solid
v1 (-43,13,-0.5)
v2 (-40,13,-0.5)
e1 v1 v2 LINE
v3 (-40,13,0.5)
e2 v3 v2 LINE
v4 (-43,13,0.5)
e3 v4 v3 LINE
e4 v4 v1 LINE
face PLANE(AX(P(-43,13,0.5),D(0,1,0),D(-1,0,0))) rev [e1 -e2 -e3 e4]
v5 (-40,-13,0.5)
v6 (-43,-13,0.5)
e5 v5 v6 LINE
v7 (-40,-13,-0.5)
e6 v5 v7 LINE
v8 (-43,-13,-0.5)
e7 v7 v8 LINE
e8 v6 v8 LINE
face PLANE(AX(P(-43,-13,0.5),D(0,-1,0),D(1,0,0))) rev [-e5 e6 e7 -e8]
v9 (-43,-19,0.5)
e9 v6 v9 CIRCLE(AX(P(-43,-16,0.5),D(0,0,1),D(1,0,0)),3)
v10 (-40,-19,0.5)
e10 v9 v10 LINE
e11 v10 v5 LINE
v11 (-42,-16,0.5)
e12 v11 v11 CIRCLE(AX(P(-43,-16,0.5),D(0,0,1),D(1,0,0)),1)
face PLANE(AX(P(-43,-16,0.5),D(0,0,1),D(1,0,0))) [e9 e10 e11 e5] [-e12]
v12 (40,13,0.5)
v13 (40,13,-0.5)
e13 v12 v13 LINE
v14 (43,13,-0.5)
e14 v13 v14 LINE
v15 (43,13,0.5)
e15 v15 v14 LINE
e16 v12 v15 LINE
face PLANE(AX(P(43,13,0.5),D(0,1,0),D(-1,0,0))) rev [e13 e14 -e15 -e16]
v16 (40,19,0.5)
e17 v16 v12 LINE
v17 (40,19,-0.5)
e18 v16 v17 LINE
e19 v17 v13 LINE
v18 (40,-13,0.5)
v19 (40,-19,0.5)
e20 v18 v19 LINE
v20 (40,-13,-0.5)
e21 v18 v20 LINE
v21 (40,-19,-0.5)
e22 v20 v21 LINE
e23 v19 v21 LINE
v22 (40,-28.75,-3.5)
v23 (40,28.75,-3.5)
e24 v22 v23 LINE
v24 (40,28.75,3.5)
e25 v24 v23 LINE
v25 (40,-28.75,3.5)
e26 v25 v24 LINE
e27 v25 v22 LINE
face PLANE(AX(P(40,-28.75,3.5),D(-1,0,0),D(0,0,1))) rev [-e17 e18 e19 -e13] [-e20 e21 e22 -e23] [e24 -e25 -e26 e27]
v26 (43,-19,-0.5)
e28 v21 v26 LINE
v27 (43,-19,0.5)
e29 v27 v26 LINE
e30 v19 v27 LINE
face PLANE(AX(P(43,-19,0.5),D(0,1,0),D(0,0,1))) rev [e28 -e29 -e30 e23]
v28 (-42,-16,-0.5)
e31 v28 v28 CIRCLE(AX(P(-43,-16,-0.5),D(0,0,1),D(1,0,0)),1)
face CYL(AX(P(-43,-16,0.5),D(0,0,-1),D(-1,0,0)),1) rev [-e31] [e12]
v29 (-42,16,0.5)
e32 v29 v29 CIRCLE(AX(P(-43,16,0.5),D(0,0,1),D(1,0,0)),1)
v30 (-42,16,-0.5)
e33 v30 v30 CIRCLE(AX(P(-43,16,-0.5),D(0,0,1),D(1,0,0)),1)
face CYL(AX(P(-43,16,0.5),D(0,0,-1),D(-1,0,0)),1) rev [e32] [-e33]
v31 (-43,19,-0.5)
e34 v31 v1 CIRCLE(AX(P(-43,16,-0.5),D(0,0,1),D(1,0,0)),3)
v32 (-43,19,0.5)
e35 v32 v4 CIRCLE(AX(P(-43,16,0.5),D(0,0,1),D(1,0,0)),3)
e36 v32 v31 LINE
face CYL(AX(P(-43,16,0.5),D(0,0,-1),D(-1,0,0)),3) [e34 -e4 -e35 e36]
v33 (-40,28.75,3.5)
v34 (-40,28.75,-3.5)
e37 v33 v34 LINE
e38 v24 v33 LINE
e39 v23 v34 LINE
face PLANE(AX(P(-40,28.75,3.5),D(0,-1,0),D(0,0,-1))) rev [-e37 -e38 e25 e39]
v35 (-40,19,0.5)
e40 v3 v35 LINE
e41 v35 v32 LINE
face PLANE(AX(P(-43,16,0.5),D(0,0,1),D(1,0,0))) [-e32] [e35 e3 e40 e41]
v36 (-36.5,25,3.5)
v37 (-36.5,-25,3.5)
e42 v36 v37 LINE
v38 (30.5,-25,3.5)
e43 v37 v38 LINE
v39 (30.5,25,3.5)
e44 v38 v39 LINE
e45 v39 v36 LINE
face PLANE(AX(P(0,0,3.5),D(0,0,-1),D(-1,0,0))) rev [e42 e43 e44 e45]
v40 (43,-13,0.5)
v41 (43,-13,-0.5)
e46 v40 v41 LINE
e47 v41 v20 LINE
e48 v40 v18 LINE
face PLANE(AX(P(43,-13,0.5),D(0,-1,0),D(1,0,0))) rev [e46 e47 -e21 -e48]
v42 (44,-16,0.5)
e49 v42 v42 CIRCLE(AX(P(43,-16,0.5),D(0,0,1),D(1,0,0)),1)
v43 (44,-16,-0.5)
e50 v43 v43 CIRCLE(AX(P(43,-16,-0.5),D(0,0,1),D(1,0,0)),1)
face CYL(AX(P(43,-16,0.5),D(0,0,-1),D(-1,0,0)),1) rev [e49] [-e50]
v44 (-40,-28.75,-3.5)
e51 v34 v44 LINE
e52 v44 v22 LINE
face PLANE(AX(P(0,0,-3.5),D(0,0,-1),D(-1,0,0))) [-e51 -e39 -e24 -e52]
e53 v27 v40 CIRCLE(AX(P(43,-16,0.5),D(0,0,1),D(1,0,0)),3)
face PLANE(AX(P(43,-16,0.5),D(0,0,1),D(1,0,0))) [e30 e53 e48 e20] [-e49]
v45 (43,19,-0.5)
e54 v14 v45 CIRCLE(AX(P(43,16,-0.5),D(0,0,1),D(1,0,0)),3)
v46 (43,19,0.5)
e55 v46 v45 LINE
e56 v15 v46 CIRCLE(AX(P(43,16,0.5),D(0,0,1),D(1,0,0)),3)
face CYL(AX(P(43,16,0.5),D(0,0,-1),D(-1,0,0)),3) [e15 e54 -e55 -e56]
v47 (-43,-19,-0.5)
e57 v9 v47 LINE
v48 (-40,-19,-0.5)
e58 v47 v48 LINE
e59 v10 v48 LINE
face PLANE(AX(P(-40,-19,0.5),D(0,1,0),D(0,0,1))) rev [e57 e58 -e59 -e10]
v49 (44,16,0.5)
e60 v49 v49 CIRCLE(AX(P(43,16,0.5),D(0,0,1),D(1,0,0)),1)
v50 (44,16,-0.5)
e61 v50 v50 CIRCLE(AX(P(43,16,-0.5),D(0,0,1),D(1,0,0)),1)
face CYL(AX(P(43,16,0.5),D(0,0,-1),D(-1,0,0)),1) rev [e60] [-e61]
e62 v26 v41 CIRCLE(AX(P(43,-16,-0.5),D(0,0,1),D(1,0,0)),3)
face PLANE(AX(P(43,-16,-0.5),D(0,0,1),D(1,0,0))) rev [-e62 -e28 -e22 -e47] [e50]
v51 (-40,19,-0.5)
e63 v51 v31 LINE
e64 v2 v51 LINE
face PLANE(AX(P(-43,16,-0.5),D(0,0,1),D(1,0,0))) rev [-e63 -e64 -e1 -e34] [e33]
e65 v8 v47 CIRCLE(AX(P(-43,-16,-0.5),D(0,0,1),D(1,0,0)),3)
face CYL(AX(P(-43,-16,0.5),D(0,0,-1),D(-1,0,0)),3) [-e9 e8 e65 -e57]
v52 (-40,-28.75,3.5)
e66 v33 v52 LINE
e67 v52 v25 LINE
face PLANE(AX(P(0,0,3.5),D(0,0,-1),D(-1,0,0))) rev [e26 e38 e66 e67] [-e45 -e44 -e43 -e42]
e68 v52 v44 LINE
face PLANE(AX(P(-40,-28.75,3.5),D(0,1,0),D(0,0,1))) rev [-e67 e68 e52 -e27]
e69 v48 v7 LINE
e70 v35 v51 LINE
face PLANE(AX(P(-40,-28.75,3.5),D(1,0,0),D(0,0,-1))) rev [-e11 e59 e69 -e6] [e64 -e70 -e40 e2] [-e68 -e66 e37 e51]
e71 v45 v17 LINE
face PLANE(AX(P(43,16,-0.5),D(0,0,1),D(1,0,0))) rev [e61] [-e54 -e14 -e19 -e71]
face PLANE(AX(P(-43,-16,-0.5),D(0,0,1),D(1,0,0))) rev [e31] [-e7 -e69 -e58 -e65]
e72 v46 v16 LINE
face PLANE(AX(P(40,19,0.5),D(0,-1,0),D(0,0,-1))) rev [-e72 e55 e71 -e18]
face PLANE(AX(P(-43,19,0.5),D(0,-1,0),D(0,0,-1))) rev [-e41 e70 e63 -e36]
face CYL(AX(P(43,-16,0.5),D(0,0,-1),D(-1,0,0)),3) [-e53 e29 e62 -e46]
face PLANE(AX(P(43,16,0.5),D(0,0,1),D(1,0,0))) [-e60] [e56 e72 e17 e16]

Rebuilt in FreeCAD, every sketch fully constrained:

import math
import FreeCAD as App
import Part
import Sketcher
from FreeCAD import Vector
Q = App.Units.Quantity

doc = App.newDocument("Part")
body = doc.addObject("PartDesign::Body", "Body")

sketch1 = body.newObject("Sketcher::SketchObject", "Sketch")
sketch1.AttachmentSupport = (doc.getObject("XY_Plane"), [""])
sketch1.MapMode = "FlatFace"
sketch1.addGeometry([
    Part.LineSegment(Vector(-40, 29, 0), Vector(-40, -29, 0)),
    Part.LineSegment(Vector(-40, -29, 0), Vector(40, -29, 0)),
    Part.LineSegment(Vector(40, -29, 0), Vector(40, 29, 0)),
    Part.LineSegment(Vector(40, 29, 0), Vector(-40, 29, 0)),
], False)
sketch1.addConstraint([
    Sketcher.Constraint("Coincident", 0, 2, 1, 1),
    Sketcher.Constraint("Coincident", 1, 2, 2, 1),
    Sketcher.Constraint("Coincident", 2, 2, 3, 1),
    Sketcher.Constraint("Coincident", 3, 2, 0, 1),
    Sketcher.Constraint("Vertical", 0),
    Sketcher.Constraint("Horizontal", 1),
    Sketcher.Constraint("Vertical", 2),
    Sketcher.Constraint("Horizontal", 3),
    Sketcher.Constraint("Symmetric", 0, 2, 2, 2, -1, 1),
    Sketcher.Constraint("DistanceX", 1, 1, 1, 2, Q("80 mm")),
    Sketcher.Constraint("DistanceY", 0, 2, 0, 1, Q("57.5 mm")),
])
pad1 = body.newObject("PartDesign::Pad", "Pad")
pad1.Profile = sketch1
pad1.Length = 7
pad1.Midplane = True

sketch2 = body.newObject("Sketcher::SketchObject", "Sketch001")
sketch2.AttachmentSupport = (doc.getObject("XY_Plane"), [""])
sketch2.MapMode = "FlatFace"
sketch2.addGeometry([
    Part.LineSegment(Vector(43, 19, 0), Vector(40, 19, 0)),
    Part.LineSegment(Vector(40, 19, 0), Vector(40, 13, 0)),
    Part.LineSegment(Vector(40, 13, 0), Vector(43, 13, 0)),
    Part.ArcOfCircle(Part.Circle(Vector(43, 16, 0), Vector(0, 0, 1), 3), math.radians(-90), math.radians(90)),
    Part.Circle(Vector(43, 16, 0), Vector(0, 0, 1), 1),
    Part.LineSegment(Vector(40, -19, 0), Vector(43, -19, 0)),
    Part.ArcOfCircle(Part.Circle(Vector(43, -16, 0), Vector(0, 0, 1), 3), math.radians(-90), math.radians(90)),
    Part.LineSegment(Vector(43, -13, 0), Vector(40, -13, 0)),
    Part.LineSegment(Vector(40, -13, 0), Vector(40, -19, 0)),
    Part.Circle(Vector(43, -16, 0), Vector(0, 0, 1), 1),
    Part.LineSegment(Vector(-40, 19, 0), Vector(-43, 19, 0)),
    Part.ArcOfCircle(Part.Circle(Vector(-43, 16, 0), Vector(0, 0, 1), 3), math.radians(90), math.radians(270)),
    Part.LineSegment(Vector(-43, 13, 0), Vector(-40, 13, 0)),
    Part.LineSegment(Vector(-40, 13, 0), Vector(-40, 19, 0)),
    Part.Circle(Vector(-43, 16, 0), Vector(0, 0, 1), 1),
    Part.LineSegment(Vector(-40, -13, 0), Vector(-43, -13, 0)),
    Part.ArcOfCircle(Part.Circle(Vector(-43, -16, 0), Vector(0, 0, 1), 3), math.radians(90), math.radians(270)),
    Part.LineSegment(Vector(-43, -19, 0), Vector(-40, -19, 0)),
    Part.LineSegment(Vector(-40, -19, 0), Vector(-40, -13, 0)),
    Part.Circle(Vector(-43, -16, 0), Vector(0, 0, 1), 1),
], False)
sketch2.addConstraint([
    Sketcher.Constraint("Coincident", 0, 2, 1, 1),
    Sketcher.Constraint("Coincident", 1, 2, 2, 1),
    Sketcher.Constraint("Tangent", 2, 2, 3, 1),
    Sketcher.Constraint("Tangent", 3, 2, 0, 1),
    Sketcher.Constraint("Tangent", 5, 2, 6, 1),
    Sketcher.Constraint("Tangent", 6, 2, 7, 1),
    Sketcher.Constraint("Coincident", 7, 2, 8, 1),
    Sketcher.Constraint("Coincident", 8, 2, 5, 1),
    Sketcher.Constraint("Tangent", 10, 2, 11, 1),
    Sketcher.Constraint("Tangent", 11, 2, 12, 1),
    Sketcher.Constraint("Coincident", 12, 2, 13, 1),
    Sketcher.Constraint("Coincident", 13, 2, 10, 1),
    Sketcher.Constraint("Tangent", 15, 2, 16, 1),
    Sketcher.Constraint("Tangent", 16, 2, 17, 1),
    Sketcher.Constraint("Coincident", 17, 2, 18, 1),
    Sketcher.Constraint("Coincident", 18, 2, 15, 1),
    Sketcher.Constraint("Horizontal", 0),
    Sketcher.Constraint("Vertical", 1),
    Sketcher.Constraint("Horizontal", 2),
    Sketcher.Constraint("Horizontal", 5),
    Sketcher.Constraint("Horizontal", 7),
    Sketcher.Constraint("Vertical", 8),
    Sketcher.Constraint("Horizontal", 10),
    Sketcher.Constraint("Horizontal", 12),
    Sketcher.Constraint("Vertical", 13),
    Sketcher.Constraint("Horizontal", 15),
    Sketcher.Constraint("Horizontal", 17),
    Sketcher.Constraint("Vertical", 18),
    Sketcher.Constraint("Coincident", 4, 3, 3, 3),
    Sketcher.Constraint("Coincident", 9, 3, 6, 3),
    Sketcher.Constraint("Coincident", 14, 3, 11, 3),
    Sketcher.Constraint("Coincident", 19, 3, 16, 3),
    Sketcher.Constraint("Equal", 3, 6),
    Sketcher.Constraint("Equal", 4, 9),
    Sketcher.Constraint("Equal", 6, 11),
    Sketcher.Constraint("Equal", 9, 14),
    Sketcher.Constraint("Equal", 11, 16),
    Sketcher.Constraint("Equal", 14, 19),
    Sketcher.Constraint("Symmetric", 6, 3, 11, 3, -1, 1),
    Sketcher.Constraint("Symmetric", 3, 3, 16, 3, -1, 1),
    Sketcher.Constraint("Symmetric", 3, 3, 11, 3, -2),
    Sketcher.Constraint("Vertical", 1, 2, 7, 2),
    Sketcher.Constraint("Vertical", 13, 2, 17, 2),
    Sketcher.Constraint("Equal", 7, 10),
    Sketcher.Constraint("Diameter", 4, Q("2 mm")),
    Sketcher.Constraint("Radius", 3, Q("3 mm")),
    Sketcher.Constraint("DistanceX", 0, 2, 0, 1, Q("3 mm")),
    Sketcher.Constraint("DistanceX", -1, 1, 3, 3, Q("43 mm")),
    Sketcher.Constraint("DistanceY", -1, 1, 3, 3, Q("16 mm")),
])
pad2 = body.newObject("PartDesign::Pad", "Pad001")
pad2.Profile = sketch2
pad2.Length = 1
pad2.Midplane = True

doc.recompute()
